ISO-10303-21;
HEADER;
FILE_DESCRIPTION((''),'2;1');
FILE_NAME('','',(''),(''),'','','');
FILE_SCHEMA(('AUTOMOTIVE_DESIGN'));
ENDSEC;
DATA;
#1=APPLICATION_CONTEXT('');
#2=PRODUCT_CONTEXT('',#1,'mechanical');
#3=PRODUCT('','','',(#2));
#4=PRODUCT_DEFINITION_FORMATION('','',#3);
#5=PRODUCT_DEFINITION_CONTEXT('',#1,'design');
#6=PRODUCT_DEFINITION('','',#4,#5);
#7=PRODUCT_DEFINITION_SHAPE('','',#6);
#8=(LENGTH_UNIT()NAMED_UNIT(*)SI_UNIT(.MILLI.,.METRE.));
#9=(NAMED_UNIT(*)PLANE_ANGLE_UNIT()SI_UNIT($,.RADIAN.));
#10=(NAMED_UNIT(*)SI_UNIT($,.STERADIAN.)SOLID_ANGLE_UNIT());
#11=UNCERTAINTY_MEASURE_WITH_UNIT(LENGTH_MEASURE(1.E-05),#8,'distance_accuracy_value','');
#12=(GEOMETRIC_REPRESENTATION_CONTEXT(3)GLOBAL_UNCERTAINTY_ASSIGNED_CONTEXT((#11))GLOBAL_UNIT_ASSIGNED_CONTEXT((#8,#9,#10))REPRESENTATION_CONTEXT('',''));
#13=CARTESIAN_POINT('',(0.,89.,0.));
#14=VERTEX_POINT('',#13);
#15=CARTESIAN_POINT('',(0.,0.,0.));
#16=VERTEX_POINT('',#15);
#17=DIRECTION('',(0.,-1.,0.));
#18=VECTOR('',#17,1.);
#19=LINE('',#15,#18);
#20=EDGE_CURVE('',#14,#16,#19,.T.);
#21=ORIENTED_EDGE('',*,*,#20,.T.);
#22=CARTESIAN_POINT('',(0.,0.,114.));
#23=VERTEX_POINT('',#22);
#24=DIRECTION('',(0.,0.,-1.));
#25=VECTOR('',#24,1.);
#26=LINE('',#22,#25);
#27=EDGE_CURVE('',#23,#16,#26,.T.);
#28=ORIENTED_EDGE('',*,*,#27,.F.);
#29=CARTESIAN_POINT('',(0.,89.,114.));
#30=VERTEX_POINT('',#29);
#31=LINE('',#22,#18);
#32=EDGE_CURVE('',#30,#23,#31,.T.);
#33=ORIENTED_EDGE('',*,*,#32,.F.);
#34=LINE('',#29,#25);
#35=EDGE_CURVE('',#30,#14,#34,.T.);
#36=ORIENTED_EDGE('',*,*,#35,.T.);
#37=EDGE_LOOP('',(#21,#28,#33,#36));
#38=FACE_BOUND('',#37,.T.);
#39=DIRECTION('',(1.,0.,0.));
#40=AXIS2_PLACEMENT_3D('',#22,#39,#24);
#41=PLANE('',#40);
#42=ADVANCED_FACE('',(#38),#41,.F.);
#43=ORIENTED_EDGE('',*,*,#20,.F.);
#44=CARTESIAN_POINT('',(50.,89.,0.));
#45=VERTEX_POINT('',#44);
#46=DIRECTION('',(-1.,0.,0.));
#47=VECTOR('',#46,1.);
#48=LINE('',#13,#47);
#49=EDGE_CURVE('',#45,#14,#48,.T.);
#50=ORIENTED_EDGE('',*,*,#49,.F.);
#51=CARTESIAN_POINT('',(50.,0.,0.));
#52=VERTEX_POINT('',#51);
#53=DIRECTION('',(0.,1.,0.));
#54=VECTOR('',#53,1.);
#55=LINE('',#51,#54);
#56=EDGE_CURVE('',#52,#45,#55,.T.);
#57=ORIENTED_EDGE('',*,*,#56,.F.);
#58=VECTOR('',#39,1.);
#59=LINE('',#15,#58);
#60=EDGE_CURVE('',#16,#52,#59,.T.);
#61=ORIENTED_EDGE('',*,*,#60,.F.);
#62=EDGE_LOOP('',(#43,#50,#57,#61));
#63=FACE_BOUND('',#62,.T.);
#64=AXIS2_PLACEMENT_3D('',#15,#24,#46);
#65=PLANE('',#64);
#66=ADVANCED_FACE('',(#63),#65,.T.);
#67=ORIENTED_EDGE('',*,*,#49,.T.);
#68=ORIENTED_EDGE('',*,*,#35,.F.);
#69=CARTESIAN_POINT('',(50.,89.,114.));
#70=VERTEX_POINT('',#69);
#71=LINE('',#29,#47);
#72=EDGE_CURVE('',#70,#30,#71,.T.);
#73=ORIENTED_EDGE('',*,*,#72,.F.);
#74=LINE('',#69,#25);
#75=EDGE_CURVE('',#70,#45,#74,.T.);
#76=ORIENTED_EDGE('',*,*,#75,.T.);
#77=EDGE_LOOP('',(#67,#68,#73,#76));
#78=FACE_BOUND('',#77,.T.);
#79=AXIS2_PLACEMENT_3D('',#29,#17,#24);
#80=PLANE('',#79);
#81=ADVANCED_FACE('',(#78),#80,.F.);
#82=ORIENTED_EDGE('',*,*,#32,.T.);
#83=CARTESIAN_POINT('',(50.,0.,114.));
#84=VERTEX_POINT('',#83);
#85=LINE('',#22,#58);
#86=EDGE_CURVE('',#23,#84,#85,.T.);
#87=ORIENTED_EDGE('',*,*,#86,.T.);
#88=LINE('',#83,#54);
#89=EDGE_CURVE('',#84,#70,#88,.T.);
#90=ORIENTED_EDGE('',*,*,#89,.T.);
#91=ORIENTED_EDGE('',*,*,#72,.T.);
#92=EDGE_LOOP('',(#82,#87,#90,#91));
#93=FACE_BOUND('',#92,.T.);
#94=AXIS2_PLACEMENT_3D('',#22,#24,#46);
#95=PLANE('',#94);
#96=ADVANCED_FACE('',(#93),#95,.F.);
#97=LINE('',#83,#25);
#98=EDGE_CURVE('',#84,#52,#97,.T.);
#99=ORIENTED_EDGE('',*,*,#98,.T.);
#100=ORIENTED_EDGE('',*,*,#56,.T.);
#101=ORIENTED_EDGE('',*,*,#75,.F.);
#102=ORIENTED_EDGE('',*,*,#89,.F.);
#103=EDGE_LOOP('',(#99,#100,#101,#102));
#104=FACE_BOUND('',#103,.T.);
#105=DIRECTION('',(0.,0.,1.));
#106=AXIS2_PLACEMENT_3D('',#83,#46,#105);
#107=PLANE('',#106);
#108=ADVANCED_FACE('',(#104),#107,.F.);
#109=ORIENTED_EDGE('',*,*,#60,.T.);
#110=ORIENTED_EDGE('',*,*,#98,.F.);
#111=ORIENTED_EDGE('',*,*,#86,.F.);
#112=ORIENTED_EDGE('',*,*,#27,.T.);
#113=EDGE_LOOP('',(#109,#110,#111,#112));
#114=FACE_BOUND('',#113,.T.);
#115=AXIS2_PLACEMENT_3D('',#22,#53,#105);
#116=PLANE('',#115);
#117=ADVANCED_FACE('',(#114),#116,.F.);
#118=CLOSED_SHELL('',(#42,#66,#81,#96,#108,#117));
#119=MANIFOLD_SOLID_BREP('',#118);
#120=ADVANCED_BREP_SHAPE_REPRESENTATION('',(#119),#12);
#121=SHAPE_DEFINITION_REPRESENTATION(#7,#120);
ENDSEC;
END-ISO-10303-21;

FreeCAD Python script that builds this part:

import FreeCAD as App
import Part
import Sketcher


def add_polygon(sketch, points):
    """Adds a closed chain of lines whose ends are joined by coincident constraints."""
    first, n = sketch.GeometryCount, len(points)
    for a, b in zip(points, points[1:] + points[:1]):
        sketch.addGeometry(Part.LineSegment(App.Vector(*a, 0), App.Vector(*b, 0)), False)
    for i in range(n):
        sketch.addConstraint(Sketcher.Constraint("Coincident", first + i, 2, first + (i + 1) % n, 1))

doc = App.newDocument("Part")
body = doc.addObject("PartDesign::Body", "Body")

# Sketch on XY plane
sketch1 = body.newObject("Sketcher::SketchObject", "Sketch")
sketch1.AttachmentSupport = (doc.getObject("XY_Plane"), [""])
sketch1.MapMode = "FlatFace"
add_polygon(sketch1, [(0, 89), (0, 0), (50, 0), (50, 89)])  # lines 0-3
sketch1.addConstraint([
    Sketcher.Constraint("Vertical", 0),
    Sketcher.Constraint("Horizontal", 1),
    Sketcher.Constraint("Vertical", 2),
    Sketcher.Constraint("Horizontal", 3),
    Sketcher.Constraint("Coincident", 0, 2, -1, 1),
    Sketcher.Constraint("DistanceX", 1, 1, 1, 2, 50.0),
    Sketcher.Constraint("DistanceY", 0, 2, 0, 1, 89.0),
])
pad1 = body.newObject("PartDesign::Pad", "Pad")
pad1.Profile = sketch1
pad1.Length = 114

doc.recompute()
